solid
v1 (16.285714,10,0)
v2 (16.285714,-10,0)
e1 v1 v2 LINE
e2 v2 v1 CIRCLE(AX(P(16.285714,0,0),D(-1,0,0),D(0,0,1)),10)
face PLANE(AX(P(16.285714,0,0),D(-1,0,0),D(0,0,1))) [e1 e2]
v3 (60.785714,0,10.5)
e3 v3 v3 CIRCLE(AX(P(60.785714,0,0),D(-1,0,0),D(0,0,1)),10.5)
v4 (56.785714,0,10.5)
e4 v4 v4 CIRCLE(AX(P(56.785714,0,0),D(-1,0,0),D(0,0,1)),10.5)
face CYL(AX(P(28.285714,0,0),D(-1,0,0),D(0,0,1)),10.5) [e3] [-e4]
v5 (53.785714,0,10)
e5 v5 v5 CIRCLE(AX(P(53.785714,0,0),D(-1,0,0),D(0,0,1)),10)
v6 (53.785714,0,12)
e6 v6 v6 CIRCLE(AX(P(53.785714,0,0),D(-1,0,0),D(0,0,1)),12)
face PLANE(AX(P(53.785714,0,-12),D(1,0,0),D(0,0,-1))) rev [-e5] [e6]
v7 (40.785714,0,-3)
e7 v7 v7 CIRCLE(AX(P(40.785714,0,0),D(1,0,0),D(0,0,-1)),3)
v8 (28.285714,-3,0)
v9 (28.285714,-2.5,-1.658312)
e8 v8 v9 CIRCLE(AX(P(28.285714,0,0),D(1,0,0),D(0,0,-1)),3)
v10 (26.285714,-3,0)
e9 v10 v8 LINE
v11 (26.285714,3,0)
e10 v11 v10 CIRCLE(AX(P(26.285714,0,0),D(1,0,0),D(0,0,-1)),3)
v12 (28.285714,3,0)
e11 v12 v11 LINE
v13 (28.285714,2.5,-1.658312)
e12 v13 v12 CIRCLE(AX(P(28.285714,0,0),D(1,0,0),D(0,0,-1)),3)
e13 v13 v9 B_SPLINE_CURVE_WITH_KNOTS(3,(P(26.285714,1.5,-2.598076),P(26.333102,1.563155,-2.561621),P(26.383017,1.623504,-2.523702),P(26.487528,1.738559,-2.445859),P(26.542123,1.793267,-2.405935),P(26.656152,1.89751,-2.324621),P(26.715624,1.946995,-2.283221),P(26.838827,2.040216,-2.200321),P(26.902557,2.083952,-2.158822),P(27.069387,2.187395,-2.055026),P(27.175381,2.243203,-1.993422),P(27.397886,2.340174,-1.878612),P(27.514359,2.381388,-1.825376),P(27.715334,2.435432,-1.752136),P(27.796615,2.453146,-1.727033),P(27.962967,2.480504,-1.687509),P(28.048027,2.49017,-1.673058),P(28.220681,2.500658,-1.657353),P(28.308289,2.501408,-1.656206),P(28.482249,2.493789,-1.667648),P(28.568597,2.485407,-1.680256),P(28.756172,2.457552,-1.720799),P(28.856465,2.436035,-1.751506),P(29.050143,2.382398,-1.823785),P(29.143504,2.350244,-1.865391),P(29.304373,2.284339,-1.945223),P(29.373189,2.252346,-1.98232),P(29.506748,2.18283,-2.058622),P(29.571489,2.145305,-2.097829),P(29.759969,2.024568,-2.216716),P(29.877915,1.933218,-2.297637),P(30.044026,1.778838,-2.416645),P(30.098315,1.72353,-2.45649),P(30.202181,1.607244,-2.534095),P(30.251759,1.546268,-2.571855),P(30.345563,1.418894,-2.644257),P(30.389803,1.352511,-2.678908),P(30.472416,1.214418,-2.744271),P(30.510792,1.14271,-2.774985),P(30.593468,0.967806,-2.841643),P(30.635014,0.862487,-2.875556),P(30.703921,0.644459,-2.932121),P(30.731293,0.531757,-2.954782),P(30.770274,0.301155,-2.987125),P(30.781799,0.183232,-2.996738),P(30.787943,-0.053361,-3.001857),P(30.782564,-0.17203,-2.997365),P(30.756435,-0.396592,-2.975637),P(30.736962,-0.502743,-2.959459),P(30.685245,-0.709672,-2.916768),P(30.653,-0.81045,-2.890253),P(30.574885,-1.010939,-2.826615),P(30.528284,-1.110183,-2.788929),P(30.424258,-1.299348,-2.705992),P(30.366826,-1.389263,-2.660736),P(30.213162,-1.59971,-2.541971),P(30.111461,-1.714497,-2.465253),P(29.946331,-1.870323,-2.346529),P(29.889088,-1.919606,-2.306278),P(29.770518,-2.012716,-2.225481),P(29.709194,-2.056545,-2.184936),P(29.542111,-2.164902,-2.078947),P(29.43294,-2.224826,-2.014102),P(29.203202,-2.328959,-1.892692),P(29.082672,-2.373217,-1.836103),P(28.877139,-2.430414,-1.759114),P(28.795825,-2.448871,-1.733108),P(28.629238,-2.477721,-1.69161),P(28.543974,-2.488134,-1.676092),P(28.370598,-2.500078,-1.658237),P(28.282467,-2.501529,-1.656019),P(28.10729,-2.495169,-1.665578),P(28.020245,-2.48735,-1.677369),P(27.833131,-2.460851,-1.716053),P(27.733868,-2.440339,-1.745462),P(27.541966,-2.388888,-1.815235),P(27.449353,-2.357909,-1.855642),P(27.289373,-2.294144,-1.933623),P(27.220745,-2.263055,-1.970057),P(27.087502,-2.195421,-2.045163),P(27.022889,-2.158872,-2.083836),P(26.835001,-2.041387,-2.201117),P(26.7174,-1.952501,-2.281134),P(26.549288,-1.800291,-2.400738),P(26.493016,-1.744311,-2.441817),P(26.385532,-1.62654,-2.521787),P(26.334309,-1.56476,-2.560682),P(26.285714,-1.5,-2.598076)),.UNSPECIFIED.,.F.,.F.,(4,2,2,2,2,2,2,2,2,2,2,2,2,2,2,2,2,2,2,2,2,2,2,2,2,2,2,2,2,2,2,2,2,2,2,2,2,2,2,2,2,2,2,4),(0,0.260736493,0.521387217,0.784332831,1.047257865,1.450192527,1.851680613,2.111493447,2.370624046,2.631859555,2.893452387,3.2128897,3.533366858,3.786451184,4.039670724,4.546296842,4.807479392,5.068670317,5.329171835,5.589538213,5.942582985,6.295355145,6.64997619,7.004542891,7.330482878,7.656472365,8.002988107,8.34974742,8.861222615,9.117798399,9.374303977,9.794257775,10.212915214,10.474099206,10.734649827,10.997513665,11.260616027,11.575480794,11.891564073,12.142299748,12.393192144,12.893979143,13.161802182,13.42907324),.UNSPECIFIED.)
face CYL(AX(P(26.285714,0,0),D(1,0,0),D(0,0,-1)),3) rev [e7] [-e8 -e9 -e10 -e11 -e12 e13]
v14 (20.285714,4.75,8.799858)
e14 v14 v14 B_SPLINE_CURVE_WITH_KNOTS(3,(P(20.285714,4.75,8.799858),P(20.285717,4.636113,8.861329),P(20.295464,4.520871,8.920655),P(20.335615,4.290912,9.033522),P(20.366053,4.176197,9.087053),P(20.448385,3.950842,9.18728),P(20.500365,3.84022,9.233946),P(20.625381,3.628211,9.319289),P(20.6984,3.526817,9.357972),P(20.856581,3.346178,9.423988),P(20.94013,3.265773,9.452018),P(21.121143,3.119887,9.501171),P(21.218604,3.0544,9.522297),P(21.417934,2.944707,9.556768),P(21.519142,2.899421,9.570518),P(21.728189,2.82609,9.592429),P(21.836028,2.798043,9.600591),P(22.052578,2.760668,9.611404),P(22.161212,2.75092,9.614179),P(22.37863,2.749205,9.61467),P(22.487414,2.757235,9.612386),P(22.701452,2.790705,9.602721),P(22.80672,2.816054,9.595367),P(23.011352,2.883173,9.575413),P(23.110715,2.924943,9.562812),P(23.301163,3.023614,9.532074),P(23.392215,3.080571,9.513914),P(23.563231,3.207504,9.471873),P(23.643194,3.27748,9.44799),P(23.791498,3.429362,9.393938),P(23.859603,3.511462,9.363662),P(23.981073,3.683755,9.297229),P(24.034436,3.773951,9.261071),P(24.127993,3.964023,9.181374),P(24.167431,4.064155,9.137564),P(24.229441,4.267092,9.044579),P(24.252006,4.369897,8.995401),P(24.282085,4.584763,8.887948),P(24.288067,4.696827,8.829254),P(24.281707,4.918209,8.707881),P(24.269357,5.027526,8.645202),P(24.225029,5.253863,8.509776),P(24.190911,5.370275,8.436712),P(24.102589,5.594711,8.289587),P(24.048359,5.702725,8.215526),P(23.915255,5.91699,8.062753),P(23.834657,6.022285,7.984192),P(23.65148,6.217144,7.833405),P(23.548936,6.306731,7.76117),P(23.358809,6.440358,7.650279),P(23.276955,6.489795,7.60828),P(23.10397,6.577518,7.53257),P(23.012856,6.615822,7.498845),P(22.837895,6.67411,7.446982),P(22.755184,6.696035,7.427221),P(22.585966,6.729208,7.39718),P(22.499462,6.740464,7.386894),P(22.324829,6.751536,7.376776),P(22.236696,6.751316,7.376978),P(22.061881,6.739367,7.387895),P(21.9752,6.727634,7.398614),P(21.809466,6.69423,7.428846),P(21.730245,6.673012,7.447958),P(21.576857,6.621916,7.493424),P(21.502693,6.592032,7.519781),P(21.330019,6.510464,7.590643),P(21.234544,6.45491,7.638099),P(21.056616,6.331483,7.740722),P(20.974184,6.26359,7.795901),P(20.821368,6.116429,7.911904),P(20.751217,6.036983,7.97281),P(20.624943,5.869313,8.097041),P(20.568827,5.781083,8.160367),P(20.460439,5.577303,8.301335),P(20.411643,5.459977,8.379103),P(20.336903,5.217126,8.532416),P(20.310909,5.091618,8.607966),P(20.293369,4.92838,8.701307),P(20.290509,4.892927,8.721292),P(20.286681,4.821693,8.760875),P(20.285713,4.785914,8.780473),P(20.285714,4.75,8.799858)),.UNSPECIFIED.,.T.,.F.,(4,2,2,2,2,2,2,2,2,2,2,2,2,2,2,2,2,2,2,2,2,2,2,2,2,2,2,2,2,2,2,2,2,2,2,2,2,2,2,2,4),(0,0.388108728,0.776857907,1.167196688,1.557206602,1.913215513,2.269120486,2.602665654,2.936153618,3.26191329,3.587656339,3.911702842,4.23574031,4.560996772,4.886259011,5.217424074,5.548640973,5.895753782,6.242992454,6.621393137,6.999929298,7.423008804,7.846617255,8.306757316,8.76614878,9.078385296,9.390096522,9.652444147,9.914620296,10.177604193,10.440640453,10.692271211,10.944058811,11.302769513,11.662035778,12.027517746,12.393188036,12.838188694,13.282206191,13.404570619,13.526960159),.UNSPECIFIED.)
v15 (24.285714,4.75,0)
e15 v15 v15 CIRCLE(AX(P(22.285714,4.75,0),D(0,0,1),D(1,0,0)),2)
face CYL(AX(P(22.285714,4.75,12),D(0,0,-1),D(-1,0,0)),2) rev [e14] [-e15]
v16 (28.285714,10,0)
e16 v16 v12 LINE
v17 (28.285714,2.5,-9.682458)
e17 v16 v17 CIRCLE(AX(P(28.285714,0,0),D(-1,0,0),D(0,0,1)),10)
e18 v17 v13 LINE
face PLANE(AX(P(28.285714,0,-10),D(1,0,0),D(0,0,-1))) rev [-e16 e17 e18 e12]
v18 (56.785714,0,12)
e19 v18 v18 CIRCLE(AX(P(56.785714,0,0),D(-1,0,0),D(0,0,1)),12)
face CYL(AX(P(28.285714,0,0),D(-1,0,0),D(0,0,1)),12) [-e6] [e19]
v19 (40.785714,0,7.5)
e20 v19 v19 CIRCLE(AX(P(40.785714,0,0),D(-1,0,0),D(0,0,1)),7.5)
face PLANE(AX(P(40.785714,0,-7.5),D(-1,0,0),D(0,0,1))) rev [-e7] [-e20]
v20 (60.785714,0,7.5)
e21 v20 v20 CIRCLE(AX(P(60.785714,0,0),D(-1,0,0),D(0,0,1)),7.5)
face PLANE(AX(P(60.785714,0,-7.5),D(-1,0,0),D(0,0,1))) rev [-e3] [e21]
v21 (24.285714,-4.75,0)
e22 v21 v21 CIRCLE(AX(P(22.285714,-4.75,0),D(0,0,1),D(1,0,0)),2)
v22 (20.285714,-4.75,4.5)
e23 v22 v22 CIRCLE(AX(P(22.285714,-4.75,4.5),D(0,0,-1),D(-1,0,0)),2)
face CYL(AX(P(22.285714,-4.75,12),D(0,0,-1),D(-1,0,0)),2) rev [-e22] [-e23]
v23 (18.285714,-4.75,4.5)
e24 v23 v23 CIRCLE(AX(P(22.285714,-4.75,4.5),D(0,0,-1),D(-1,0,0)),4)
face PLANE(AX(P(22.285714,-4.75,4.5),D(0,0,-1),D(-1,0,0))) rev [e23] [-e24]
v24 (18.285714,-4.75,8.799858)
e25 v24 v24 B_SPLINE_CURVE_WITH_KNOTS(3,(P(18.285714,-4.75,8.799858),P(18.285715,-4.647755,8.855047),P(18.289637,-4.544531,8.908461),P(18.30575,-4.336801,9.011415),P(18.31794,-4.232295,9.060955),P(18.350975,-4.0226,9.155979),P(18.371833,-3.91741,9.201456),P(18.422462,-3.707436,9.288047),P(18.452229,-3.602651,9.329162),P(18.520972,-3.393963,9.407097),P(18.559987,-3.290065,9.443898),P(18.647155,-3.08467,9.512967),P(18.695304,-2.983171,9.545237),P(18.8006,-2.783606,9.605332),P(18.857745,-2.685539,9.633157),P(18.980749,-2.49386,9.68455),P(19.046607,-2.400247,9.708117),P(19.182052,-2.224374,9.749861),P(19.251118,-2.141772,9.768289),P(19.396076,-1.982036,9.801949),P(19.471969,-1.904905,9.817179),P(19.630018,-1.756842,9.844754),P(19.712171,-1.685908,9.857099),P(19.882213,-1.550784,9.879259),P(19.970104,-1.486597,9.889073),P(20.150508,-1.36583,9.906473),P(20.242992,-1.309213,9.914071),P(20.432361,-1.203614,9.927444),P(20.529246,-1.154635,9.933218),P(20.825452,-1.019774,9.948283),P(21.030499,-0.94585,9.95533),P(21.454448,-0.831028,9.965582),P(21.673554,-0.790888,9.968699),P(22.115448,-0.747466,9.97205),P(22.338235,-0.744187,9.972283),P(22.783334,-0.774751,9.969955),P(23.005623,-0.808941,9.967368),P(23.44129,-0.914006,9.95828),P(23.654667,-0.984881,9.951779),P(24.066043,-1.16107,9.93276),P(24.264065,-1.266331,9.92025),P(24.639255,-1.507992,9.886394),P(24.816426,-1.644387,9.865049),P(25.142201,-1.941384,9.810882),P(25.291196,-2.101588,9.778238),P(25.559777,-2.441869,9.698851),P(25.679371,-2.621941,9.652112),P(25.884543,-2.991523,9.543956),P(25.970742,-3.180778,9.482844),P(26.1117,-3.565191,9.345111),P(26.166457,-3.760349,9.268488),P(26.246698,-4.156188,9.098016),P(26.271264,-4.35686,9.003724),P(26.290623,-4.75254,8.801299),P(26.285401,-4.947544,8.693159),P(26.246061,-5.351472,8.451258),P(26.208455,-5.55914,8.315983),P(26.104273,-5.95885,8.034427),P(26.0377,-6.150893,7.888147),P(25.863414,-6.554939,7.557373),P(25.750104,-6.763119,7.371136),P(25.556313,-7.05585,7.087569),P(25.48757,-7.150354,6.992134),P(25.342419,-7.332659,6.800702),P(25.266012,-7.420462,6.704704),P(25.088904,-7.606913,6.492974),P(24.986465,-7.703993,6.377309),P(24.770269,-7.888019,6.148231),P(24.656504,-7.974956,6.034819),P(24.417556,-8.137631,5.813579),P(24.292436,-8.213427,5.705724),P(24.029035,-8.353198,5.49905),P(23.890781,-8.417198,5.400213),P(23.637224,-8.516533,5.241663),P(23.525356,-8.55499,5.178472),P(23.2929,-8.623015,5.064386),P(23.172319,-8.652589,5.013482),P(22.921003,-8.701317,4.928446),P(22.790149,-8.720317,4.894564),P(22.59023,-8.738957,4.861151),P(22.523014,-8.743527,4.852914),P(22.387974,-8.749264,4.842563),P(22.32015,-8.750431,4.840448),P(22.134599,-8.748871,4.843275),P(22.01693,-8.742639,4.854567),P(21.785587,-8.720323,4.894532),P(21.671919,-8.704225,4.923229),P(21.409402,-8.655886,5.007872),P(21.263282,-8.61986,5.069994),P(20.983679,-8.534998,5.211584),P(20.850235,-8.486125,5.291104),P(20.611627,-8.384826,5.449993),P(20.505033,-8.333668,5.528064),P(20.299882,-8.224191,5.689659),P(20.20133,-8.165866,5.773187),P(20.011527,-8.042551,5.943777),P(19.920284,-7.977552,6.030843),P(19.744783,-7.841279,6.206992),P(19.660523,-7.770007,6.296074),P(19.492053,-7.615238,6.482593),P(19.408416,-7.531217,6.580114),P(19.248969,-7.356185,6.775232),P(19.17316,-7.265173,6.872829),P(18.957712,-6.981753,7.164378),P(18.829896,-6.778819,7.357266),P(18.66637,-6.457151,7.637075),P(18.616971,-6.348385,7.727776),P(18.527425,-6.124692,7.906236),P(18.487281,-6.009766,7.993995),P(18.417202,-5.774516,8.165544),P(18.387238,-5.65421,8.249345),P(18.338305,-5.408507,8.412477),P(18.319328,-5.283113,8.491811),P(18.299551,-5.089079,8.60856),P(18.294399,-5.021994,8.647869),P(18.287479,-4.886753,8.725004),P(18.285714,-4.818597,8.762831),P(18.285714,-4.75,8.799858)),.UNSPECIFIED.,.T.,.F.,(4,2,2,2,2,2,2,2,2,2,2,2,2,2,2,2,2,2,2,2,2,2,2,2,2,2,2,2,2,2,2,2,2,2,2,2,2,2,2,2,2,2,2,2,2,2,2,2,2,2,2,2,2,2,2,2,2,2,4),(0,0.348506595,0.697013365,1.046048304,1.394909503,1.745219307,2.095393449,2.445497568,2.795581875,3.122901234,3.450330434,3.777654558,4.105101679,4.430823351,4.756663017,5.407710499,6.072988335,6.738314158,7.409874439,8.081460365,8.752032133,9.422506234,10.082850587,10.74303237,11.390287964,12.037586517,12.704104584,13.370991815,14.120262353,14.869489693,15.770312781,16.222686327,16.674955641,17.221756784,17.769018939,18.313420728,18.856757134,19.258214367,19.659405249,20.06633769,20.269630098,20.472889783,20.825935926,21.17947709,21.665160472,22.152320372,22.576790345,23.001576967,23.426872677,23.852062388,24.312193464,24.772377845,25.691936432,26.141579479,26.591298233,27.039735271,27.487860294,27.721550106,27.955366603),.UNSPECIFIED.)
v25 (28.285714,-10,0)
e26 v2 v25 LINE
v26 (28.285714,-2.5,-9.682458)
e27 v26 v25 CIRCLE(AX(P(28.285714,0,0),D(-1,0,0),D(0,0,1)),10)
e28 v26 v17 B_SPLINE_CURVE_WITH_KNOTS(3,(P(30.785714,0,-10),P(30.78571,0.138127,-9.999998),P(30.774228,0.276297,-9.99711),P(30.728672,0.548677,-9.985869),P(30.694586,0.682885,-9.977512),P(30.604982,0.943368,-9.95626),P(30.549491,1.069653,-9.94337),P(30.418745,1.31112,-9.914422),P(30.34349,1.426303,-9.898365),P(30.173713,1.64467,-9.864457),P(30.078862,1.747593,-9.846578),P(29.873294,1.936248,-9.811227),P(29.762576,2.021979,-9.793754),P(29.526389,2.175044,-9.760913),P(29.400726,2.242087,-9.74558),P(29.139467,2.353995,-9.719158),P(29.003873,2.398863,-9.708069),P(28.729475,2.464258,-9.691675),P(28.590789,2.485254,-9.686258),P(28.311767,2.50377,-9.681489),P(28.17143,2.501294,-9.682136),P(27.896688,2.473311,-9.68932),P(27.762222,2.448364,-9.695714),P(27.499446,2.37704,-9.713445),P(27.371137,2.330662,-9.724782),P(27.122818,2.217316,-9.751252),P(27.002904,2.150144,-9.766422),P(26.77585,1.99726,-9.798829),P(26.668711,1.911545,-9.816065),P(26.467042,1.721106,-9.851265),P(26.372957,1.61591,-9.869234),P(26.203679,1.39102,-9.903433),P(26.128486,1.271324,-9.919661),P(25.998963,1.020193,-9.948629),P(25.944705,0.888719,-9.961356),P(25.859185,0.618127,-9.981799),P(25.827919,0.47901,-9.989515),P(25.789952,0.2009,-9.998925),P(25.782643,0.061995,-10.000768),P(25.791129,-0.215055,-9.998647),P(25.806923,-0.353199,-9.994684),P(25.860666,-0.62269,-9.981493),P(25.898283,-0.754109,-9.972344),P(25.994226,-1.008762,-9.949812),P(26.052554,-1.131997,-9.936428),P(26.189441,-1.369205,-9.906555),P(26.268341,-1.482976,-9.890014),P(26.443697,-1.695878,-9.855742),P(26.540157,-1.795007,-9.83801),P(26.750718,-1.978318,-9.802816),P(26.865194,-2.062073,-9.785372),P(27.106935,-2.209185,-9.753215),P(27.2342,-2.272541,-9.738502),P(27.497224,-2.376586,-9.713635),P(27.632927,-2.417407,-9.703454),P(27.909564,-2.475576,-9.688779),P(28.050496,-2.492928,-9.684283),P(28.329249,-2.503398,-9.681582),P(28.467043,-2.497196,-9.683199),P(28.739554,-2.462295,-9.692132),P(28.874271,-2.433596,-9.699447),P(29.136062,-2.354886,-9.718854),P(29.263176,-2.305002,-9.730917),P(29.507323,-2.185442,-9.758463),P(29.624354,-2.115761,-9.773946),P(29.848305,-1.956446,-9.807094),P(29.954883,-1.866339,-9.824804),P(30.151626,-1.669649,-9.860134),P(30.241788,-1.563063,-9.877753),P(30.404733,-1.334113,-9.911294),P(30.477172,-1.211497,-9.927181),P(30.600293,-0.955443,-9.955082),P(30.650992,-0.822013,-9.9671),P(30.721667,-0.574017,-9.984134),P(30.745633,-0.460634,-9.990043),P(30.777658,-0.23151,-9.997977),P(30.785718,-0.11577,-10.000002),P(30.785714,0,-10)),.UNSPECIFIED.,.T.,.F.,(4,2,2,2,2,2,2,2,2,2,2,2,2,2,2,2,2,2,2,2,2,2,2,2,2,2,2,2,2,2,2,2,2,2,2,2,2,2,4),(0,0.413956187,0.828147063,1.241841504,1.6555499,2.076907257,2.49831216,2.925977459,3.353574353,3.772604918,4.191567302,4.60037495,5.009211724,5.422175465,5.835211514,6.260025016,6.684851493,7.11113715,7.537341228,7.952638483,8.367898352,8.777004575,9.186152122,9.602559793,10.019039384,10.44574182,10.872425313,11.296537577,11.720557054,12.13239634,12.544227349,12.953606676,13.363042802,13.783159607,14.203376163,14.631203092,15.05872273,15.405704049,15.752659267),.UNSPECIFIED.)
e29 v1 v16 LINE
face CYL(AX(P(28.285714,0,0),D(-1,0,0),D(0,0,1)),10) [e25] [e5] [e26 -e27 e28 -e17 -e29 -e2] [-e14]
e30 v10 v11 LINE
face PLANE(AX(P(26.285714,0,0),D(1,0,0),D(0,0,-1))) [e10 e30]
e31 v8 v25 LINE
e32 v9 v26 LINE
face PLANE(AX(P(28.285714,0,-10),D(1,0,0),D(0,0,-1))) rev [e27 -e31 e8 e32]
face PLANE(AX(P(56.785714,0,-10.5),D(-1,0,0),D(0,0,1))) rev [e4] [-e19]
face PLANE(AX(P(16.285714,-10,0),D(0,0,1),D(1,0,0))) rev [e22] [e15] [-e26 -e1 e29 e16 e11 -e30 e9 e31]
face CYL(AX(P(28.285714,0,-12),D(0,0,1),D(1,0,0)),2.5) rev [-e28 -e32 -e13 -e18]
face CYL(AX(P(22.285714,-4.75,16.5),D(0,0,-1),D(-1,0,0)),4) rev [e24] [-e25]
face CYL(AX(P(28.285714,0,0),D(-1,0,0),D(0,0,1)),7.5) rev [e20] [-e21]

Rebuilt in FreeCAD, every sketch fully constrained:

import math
import FreeCAD as App
import Part
import Sketcher

doc = App.newDocument("Part")
params = doc.addObject("Spreadsheet::Sheet", "Params")
for row, (alias, value) in enumerate([
    ("sketch1_width", "20 mm"),
    ("sketch1_width2", "4 mm"),
    ("sketch1_width3", "3 mm"),
    ("sketch1_height", "2 mm"),
    ("sketch1_height2", "10 mm"),
    ("revolution_angle", "360 deg"),
    ("sketch2_radius", "10 mm"),
    ("pad1_length", "12 mm"),
    ("sketch3_diameter", "4 mm"),
    ("pocket1_length", "12 mm"),
    ("sketch4_diameter", "8 mm"),
    ("pocket2_length", "12 mm"),
    ("sketch5_diameter", "6 mm"),
    ("pocket3_length", "14.5 mm"),
    ("sketch6_diameter", "5 mm"),
], start=1):
    params.set(f"A{row}", alias)
    params.set(f"B{row}", "=" + value)
    params.setAlias(f"B{row}", alias)

body = doc.addObject("PartDesign::Body", "Body")

sketch1 = body.newObject("Sketcher::SketchObject", "Sketch")
sketch1.AttachmentSupport = (doc.getObject("XZ_Plane"), [""])
sketch1.MapMode = "FlatFace"
sketch1.addGeometry([
    Part.LineSegment(App.Vector(28.3, 0, 0), App.Vector(40.8, 0, 0)),
    Part.LineSegment(App.Vector(40.8, 0, 0), App.Vector(40.8, -7.5, 0)),
    Part.LineSegment(App.Vector(40.8, -7.5, 0), App.Vector(60.8, -7.5, 0)),
    Part.LineSegment(App.Vector(60.8, -7.5, 0), App.Vector(60.8, -10.5, 0)),
    Part.LineSegment(App.Vector(60.8, -10.5, 0), App.Vector(56.8, -10.5, 0)),
    Part.LineSegment(App.Vector(56.8, -10.5, 0), App.Vector(56.8, -12, 0)),
    Part.LineSegment(App.Vector(56.8, -12, 0), App.Vector(53.8, -12, 0)),
    Part.LineSegment(App.Vector(53.8, -12, 0), App.Vector(53.8, -10, 0)),
    Part.LineSegment(App.Vector(53.8, -10, 0), App.Vector(28.3, -10, 0)),
    Part.LineSegment(App.Vector(28.3, -10, 0), App.Vector(28.3, 0, 0)),
], False)
sketch1.addConstraint([
    Sketcher.Constraint("Coincident", 0, 2, 1, 1),
    Sketcher.Constraint("Coincident", 1, 2, 2, 1),
    Sketcher.Constraint("Coincident", 2, 2, 3, 1),
    Sketcher.Constraint("Coincident", 3, 2, 4, 1),
    Sketcher.Constraint("Coincident", 4, 2, 5, 1),
    Sketcher.Constraint("Coincident", 5, 2, 6, 1),
    Sketcher.Constraint("Coincident", 6, 2, 7, 1),
    Sketcher.Constraint("Coincident", 7, 2, 8, 1),
    Sketcher.Constraint("Coincident", 8, 2, 9, 1),
    Sketcher.Constraint("Coincident", 9, 2, 0, 1),
    Sketcher.Constraint("Horizontal", 0),
    Sketcher.Constraint("Vertical", 1),
    Sketcher.Constraint("Horizontal", 2),
    Sketcher.Constraint("Vertical", 3),
    Sketcher.Constraint("Horizontal", 4),
    Sketcher.Constraint("Vertical", 5),
    Sketcher.Constraint("Horizontal", 6),
    Sketcher.Constraint("Vertical", 7),
    Sketcher.Constraint("Horizontal", 8),
    Sketcher.Constraint("Vertical", 9),
    Sketcher.Constraint("PointOnObject", 0, 2, -1),
    Sketcher.Constraint("Equal", 6, 3),
    Sketcher.Constraint("DistanceX", 2, 1, 2, 2, 20.0),
    Sketcher.Constraint("DistanceX", 4, 2, 4, 1, 4.0),
    Sketcher.Constraint("DistanceX", 6, 2, 6, 1, 3.0),
    Sketcher.Constraint("DistanceY", 7, 1, 7, 2, 2.0),
    Sketcher.Constraint("DistanceY", 9, 1, 9, 2, 10.0),
    Sketcher.Constraint("DistanceX", 0, 1, 0, 2, 12.5),
    Sketcher.Constraint("DistanceY", 1, 2, 1, 1, 7.5),
    Sketcher.Constraint("DistanceX", -1, 1, 0, 2, 40.785714),
])
sketch1.setExpression("Constraints[22]", "Params.sketch1_width")
sketch1.setExpression("Constraints[23]", "Params.sketch1_width2")
sketch1.setExpression("Constraints[24]", "Params.sketch1_width3")
sketch1.setExpression("Constraints[25]", "Params.sketch1_height")
sketch1.setExpression("Constraints[26]", "Params.sketch1_height2")
revolution = body.newObject("PartDesign::Revolution", "Revolution")
revolution.Profile = sketch1
revolution.ReferenceAxis = (sketch1, ["H_Axis"])
revolution.setExpression("Angle", "Params.revolution_angle")

sketch2 = body.newObject("Sketcher::SketchObject", "Sketch001")
sketch2.AttachmentSupport = (doc.getObject("YZ_Plane"), [""])
sketch2.MapMode = "FlatFace"
sketch2.AttachmentOffset = App.Placement(App.Vector(0, 0, 28.285714), App.Rotation())
sketch2.addGeometry([
    Part.LineSegment(App.Vector(10, 0, 0), App.Vector(-10, 0, 0)),
    Part.ArcOfCircle(Part.Circle(App.Vector(0, 0, 0), App.Vector(0, 0, 1), 10), math.radians(0), math.radians(180)),
], False)
sketch2.addConstraint([
    Sketcher.Constraint("Coincident", 0, 1, 1, 1),
    Sketcher.Constraint("Coincident", 1, 2, 0, 2),
    Sketcher.Constraint("Horizontal", 0),
    Sketcher.Constraint("Coincident", 1, 3, -1, 1),
    Sketcher.Constraint("PointOnObject", 0, 1, -1),
    Sketcher.Constraint("Radius", 1, 10.0),
])
sketch2.setExpression("Constraints[5]", "Params.sketch2_radius")
pad1 = body.newObject("PartDesign::Pad", "Pad")
pad1.Profile = sketch2
pad1.setExpression("Length", "Params.pad1_length")
pad1.Reversed = True

sketch3 = body.newObject("Sketcher::SketchObject", "Sketch002")
sketch3.AttachmentSupport = (doc.getObject("XY_Plane"), [""])
sketch3.MapMode = "FlatFace"
sketch3.addGeometry([
    Part.Circle(App.Vector(22.3, 4.8, 0), App.Vector(0, 0, 1), 2),
    Part.Circle(App.Vector(22.3, -4.8, 0), App.Vector(0, 0, 1), 2),
], False)
sketch3.addConstraint([
    Sketcher.Constraint("Equal", 0, 1),
    Sketcher.Constraint("Symmetric", 0, 3, 1, 3, -1),
    Sketcher.Constraint("Diameter", 0, 4.0),
    Sketcher.Constraint("DistanceY", 1, 3, 0, 3, 9.5),
    Sketcher.Constraint("DistanceX", -1, 1, 0, 3, 22.285714),
])
sketch3.setExpression("Constraints[2]", "Params.sketch3_diameter")
pocket1 = body.newObject("PartDesign::Pocket", "Pocket")
pocket1.Profile = sketch3
pocket1.setExpression("Length", "Params.pocket1_length")
pocket1.Reversed = True

sketch4 = body.newObject("Sketcher::SketchObject", "Sketch003")
sketch4.AttachmentSupport = (doc.getObject("XY_Plane"), [""])
sketch4.MapMode = "FlatFace"
sketch4.AttachmentOffset = App.Placement(App.Vector(0, 0, 4.5), App.Rotation())
sketch4.addGeometry(Part.Circle(App.Vector(22.3, -4.8, 0), App.Vector(0, 0, 1), 4), False)
sketch4.addConstraint([
    Sketcher.Constraint("Diameter", 0, 8.0),
    Sketcher.Constraint("DistanceY", 0, 3, -1, 1, 4.75),
    Sketcher.Constraint("DistanceX", -1, 1, 0, 3, 22.285714),
])
sketch4.setExpression("Constraints[0]", "Params.sketch4_diameter")
pocket2 = body.newObject("PartDesign::Pocket", "Pocket001")
pocket2.Profile = sketch4
pocket2.setExpression("Length", "Params.pocket2_length")
pocket2.Reversed = True

sketch5 = body.newObject("Sketcher::SketchObject", "Sketch004")
sketch5.AttachmentSupport = (doc.getObject("YZ_Plane"), [""])
sketch5.MapMode = "FlatFace"
sketch5.AttachmentOffset = App.Placement(App.Vector(0, 0, 40.785714), App.Rotation())
sketch5.addGeometry(Part.Circle(App.Vector(0, 0, 0), App.Vector(0, 0, 1), 3), False)
sketch5.addConstraint([
    Sketcher.Constraint("Coincident", 0, 3, -1, 1),
    Sketcher.Constraint("Diameter", 0, 6.0),
])
sketch5.setExpression("Constraints[1]", "Params.sketch5_diameter")
pocket3 = body.newObject("PartDesign::Pocket", "Pocket002")
pocket3.Profile = sketch5
pocket3.setExpression("Length", "Params.pocket3_length")

sketch6 = body.newObject("Sketcher::SketchObject", "Sketch005")
sketch6.AttachmentSupport = (doc.getObject("XY_Plane"), [""])
sketch6.MapMode = "FlatFace"
sketch6.addGeometry(Part.Circle(App.Vector(28.3, 0, 0), App.Vector(0, 0, 1), 2.5), False)
sketch6.addConstraint([
    Sketcher.Constraint("PointOnObject", 0, 3, -1),
    Sketcher.Constraint("Diameter", 0, 5.0),
    Sketcher.Constraint("DistanceX", -1, 1, 0, 3, 28.285714),
])
sketch6.setExpression("Constraints[1]", "Params.sketch6_diameter")
pocket4 = body.newObject("PartDesign::Pocket", "Pocket003")
pocket4.Profile = sketch6
pocket4.Type = "ThroughAll"

doc.recompute()
